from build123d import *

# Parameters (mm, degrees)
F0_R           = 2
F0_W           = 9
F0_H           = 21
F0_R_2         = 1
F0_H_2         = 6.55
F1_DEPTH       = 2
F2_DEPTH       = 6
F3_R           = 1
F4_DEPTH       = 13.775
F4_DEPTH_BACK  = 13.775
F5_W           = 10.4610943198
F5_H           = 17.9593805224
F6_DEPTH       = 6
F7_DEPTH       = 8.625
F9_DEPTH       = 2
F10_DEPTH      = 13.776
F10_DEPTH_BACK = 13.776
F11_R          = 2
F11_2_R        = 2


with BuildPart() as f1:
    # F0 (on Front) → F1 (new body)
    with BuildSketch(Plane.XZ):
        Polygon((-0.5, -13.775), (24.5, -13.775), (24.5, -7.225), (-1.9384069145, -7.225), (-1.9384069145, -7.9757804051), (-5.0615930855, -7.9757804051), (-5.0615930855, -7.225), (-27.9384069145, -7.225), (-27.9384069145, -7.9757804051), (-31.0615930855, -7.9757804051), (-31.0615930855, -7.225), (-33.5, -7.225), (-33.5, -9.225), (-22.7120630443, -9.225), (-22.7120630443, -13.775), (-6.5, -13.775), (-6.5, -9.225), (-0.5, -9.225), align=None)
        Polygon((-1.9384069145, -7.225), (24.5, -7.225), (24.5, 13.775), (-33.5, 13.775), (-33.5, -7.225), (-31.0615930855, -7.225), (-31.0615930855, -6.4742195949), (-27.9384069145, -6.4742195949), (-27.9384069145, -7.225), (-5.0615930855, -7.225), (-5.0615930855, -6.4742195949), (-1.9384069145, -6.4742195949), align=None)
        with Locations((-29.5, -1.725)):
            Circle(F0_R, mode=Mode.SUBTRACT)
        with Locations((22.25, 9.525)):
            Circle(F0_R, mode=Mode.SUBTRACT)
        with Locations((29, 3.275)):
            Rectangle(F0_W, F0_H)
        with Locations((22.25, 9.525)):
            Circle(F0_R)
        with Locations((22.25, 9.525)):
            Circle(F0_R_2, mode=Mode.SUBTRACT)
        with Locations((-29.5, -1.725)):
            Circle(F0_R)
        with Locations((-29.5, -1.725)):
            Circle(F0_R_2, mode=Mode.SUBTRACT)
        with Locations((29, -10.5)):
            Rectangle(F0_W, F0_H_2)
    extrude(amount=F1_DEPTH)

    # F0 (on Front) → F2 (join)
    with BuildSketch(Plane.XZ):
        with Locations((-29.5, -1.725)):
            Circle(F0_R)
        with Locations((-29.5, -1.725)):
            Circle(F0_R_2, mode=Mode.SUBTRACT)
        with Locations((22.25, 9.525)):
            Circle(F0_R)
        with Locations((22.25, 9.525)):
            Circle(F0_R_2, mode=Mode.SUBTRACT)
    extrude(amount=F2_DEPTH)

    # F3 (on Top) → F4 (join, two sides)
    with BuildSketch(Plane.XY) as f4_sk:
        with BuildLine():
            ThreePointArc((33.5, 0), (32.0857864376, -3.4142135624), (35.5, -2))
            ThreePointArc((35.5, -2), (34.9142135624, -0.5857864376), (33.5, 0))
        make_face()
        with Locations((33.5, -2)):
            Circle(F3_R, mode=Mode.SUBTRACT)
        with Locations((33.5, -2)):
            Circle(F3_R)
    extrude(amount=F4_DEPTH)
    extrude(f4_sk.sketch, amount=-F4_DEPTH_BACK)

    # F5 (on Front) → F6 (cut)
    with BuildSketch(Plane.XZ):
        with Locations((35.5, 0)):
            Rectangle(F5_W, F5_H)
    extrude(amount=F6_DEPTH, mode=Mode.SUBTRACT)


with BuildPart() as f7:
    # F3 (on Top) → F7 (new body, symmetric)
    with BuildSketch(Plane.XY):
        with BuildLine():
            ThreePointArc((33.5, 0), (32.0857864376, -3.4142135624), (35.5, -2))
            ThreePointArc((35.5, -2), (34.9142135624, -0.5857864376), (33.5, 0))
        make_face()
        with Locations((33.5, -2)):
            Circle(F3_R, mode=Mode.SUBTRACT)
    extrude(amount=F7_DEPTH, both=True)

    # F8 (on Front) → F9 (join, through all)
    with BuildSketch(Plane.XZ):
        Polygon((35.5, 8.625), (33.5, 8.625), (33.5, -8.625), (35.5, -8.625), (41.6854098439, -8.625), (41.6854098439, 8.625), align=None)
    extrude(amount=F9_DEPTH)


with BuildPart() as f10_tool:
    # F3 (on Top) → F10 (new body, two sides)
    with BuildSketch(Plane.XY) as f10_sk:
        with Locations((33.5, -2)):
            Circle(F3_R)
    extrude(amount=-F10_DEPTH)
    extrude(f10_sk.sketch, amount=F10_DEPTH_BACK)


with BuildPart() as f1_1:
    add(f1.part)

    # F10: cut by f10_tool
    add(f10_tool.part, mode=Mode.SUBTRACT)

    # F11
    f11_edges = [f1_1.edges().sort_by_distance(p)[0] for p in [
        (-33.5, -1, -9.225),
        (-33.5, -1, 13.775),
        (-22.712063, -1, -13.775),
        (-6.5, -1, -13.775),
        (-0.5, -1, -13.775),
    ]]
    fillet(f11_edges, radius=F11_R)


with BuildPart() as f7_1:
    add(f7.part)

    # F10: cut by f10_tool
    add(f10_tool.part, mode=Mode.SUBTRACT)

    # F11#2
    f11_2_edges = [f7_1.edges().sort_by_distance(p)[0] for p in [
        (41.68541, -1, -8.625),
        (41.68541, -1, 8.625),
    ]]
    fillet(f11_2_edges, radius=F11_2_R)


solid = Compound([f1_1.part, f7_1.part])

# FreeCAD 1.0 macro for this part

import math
import FreeCAD as App
import Part
import Sketcher

V = App.Vector
Q = App.Units.Quantity


def edges_at(feature, points):
    """Names of the edges that pass closest to the given points."""
    edges = feature.Shape.Edges
    near = lambda p: min(range(len(edges)), key=lambda i: edges[i].distToShape(Part.Vertex(*p))[0])
    return sorted({f"Edge{near(p) + 1}" for p in points})


def add_polygon(sketch, points):
    """Adds a closed chain of lines whose ends are joined by coincident constraints."""
    first, n = sketch.GeometryCount, len(points)
    for a, b in zip(points, points[1:] + points[:1]):
        sketch.addGeometry(Part.LineSegment(App.Vector(*a, 0), App.Vector(*b, 0)), False)
    for i in range(n):
        sketch.addConstraint(Sketcher.Constraint("Coincident", first + i, 2, first + (i + 1) % n, 1))

doc = App.newDocument("Part")
body = doc.addObject("PartDesign::Body", "Body")

# Sketch on XZ plane
sketch1 = body.newObject("Sketcher::SketchObject", "Sketch")
sketch1.AttachmentSupport = (doc.getObject("XZ_Plane"), [""])
sketch1.MapMode = "FlatFace"
add_polygon(sketch1, [(-0.5, -13.775), (33.5, -13.775), (33.5, 13.775), (-33.5, 13.775), (-33.5, -9.225), (-22.712063, -9.225), (-22.712063, -13.775), (-6.5, -13.775), (-6.5, -9.225), (-0.5, -9.225)])  # lines 0-9
add_polygon(sketch1, [(-27.938407, -7.97578), (-31.061593, -7.97578), (-31.061593, -6.47422), (-27.938407, -6.47422)])  # lines 10-13
sketch1.addGeometry(Part.Circle(V(-29.5, -1.725, 0), V(0, 0, 1), 1), False)  # 14
add_polygon(sketch1, [(-1.938407, -7.97578), (-5.061593, -7.97578), (-5.061593, -6.47422), (-1.938407, -6.47422)])  # lines 15-18
sketch1.addGeometry(Part.Circle(V(22.25, 9.525, 0), V(0, 0, 1), 1), False)  # 19
sketch1.addConstraint(Sketcher.Constraint("Horizontal", 0))
sketch1.addConstraint(Sketcher.Constraint("Vertical", 1))
sketch1.addConstraint(Sketcher.Constraint("Horizontal", 2))
sketch1.addConstraint(Sketcher.Constraint("Vertical", 3))
sketch1.addConstraint(Sketcher.Constraint("Horizontal", 4))
sketch1.addConstraint(Sketcher.Constraint("Vertical", 5))
sketch1.addConstraint(Sketcher.Constraint("Horizontal", 6))
sketch1.addConstraint(Sketcher.Constraint("Vertical", 7))
sketch1.addConstraint(Sketcher.Constraint("Horizontal", 8))
sketch1.addConstraint(Sketcher.Constraint("Vertical", 9))
sketch1.addConstraint(Sketcher.Constraint("Horizontal", 10))
sketch1.addConstraint(Sketcher.Constraint("Vertical", 11))
sketch1.addConstraint(Sketcher.Constraint("Horizontal", 12))
sketch1.addConstraint(Sketcher.Constraint("Vertical", 13))
sketch1.addConstraint(Sketcher.Constraint("Horizontal", 15))
sketch1.addConstraint(Sketcher.Constraint("Vertical", 16))
sketch1.addConstraint(Sketcher.Constraint("Horizontal", 17))
sketch1.addConstraint(Sketcher.Constraint("Vertical", 18))
sketch1.addConstraint(Sketcher.Constraint("Equal", 14, 19))
sketch1.addConstraint(Sketcher.Constraint("Symmetric", 0, 2, 2, 2, -1, 1))
sketch1.addConstraint(Sketcher.Constraint("Horizontal", 0, 2, 5, 2))
sketch1.addConstraint(Sketcher.Constraint("Horizontal", 4, 2, 7, 2))
sketch1.addConstraint(Sketcher.Constraint("Horizontal", 13, 2, 15, 2))
sketch1.addConstraint(Sketcher.Constraint("Horizontal", 12, 2, 16, 2))
sketch1.addConstraint(Sketcher.Constraint("Equal", 12, 15))
sketch1.addConstraint(Sketcher.Constraint("Diameter", 14, Q("2 mm")))
sketch1.addConstraint(Sketcher.Constraint("DistanceX", 0, 1, 0, 2, Q("34 mm")))
sketch1.addConstraint(Sketcher.Constraint("DistanceX", 2, 2, 2, 1, Q("67 mm")))
sketch1.addConstraint(Sketcher.Constraint("DistanceX", 8, 1, 8, 2, Q("6 mm")))
sketch1.addConstraint(Sketcher.Constraint("DistanceY", 3, 2, 3, 1, Q("23 mm")))
sketch1.addConstraint(Sketcher.Constraint("DistanceX", 14, 3, 0, 2, Q("63 mm")))
sketch1.addConstraint(Sketcher.Constraint("DistanceY", 1, 1, 1, 2, Q("27.55 mm")))
sketch1.addConstraint(Sketcher.Constraint("DistanceY", 0, 2, 19, 3, Q("23.3 mm")))
sketch1.addConstraint(Sketcher.Constraint("DistanceY", 14, 3, 1, 2, Q("15.5 mm")))
sketch1.addConstraint(Sketcher.Constraint("DistanceX", -1, 1, 19, 3, Q("22.25 mm")))
sketch1.addConstraint(Sketcher.Constraint("DistanceY", 11, 1, 11, 2, Q("1.501561 mm")))
sketch1.addConstraint(Sketcher.Constraint("DistanceX", 4, 1, 4, 2, Q("10.787937 mm")))
sketch1.addConstraint(Sketcher.Constraint("DistanceX", 10, 2, 10, 1, Q("3.123186 mm")))
sketch1.addConstraint(Sketcher.Constraint("DistanceY", 10, 2, -1, 1, Q("7.97578 mm")))
sketch1.addConstraint(Sketcher.Constraint("DistanceX", 10, 2, 4, 2, Q("8.34953 mm")))
sketch1.addConstraint(Sketcher.Constraint("DistanceX", 4, 2, 15, 2, Q("17.65047 mm")))
pad1 = body.newObject("PartDesign::Pad", "Pad")
pad1.Profile = sketch1
pad1.Length = 2

# Sketch on XZ plane
sketch2 = body.newObject("Sketcher::SketchObject", "Sketch001")
sketch2.AttachmentSupport = (doc.getObject("XZ_Plane"), [""])
sketch2.MapMode = "FlatFace"
sketch2.addGeometry(Part.Circle(V(-29.5, -1.725, 0), V(0, 0, 1), 2), False)
sketch2.addGeometry(Part.Circle(V(-29.5, -1.725, 0), V(0, 0, 1), 1), False)
sketch2.addGeometry(Part.Circle(V(22.25, 9.525, 0), V(0, 0, 1), 2), False)
sketch2.addGeometry(Part.Circle(V(22.25, 9.525, 0), V(0, 0, 1), 1), False)
sketch2.addConstraint(Sketcher.Constraint("Coincident", 1, 3, 0, 3))
sketch2.addConstraint(Sketcher.Constraint("Coincident", 3, 3, 2, 3))
sketch2.addConstraint(Sketcher.Constraint("Equal", 0, 2))
sketch2.addConstraint(Sketcher.Constraint("Equal", 1, 3))
sketch2.addConstraint(Sketcher.Constraint("Diameter", 0, Q("4 mm")))
sketch2.addConstraint(Sketcher.Constraint("Diameter", 1, Q("2 mm")))
sketch2.addConstraint(Sketcher.Constraint("DistanceX", 0, 3, -1, 1, Q("29.5 mm")))
sketch2.addConstraint(Sketcher.Constraint("DistanceX", -1, 1, 2, 3, Q("22.25 mm")))
sketch2.addConstraint(Sketcher.Constraint("DistanceY", 0, 3, 2, 3, Q("11.25 mm")))
sketch2.addConstraint(Sketcher.Constraint("DistanceY", 0, 3, -1, 1, Q("1.725 mm")))
pad2 = body.newObject("PartDesign::Pad", "Pad001")
pad2.Profile = sketch2
pad2.Length = 6

# Sketch on XY plane
sketch3 = body.newObject("Sketcher::SketchObject", "Sketch002")
sketch3.AttachmentSupport = (doc.getObject("XY_Plane"), [""])
sketch3.MapMode = "FlatFace"
sketch3.addGeometry(Part.ArcOfCircle(Part.Circle(V(33.5, -2, 0), V(0, 0, 1), 2), math.radians(90), math.radians(360)), False)
sketch3.addGeometry(Part.ArcOfCircle(Part.Circle(V(33.5, -2, 0), V(0, 0, 1), 2), math.radians(0), math.radians(90)), False)
sketch3.addConstraint(Sketcher.Constraint("Tangent", 0, 1, 1, 2))
sketch3.addConstraint(Sketcher.Constraint("Coincident", 1, 1, 0, 2))
sketch3.addConstraint(Sketcher.Constraint("PointOnObject", 0, 1, -1))
sketch3.addConstraint(Sketcher.Constraint("Horizontal", 0, 3, 1, 1))
sketch3.addConstraint(Sketcher.Constraint("Vertical", 1, 3, 0, 1))
sketch3.addConstraint(Sketcher.Constraint("Radius", 0, Q("2 mm")))
sketch3.addConstraint(Sketcher.Constraint("DistanceX", -1, 1, 0, 3, Q("33.5 mm")))
pad3 = body.newObject("PartDesign::Pad", "Pad002")
pad3.Profile = sketch3
pad3.Type = "TwoLengths"
pad3.Length = 13.775
pad3.Length2 = 13.775

# Sketch on XZ plane
sketch4 = body.newObject("Sketcher::SketchObject", "Sketch003")
sketch4.AttachmentSupport = (doc.getObject("XZ_Plane"), [""])
sketch4.MapMode = "FlatFace"
add_polygon(sketch4, [(30.269453, 8.97969), (30.269453, -8.97969), (40.730547, -8.97969), (40.730547, 8.97969)])  # lines 0-3
sketch4.addConstraint(Sketcher.Constraint("Vertical", 0))
sketch4.addConstraint(Sketcher.Constraint("Horizontal", 1))
sketch4.addConstraint(Sketcher.Constraint("Vertical", 2))
sketch4.addConstraint(Sketcher.Constraint("Horizontal", 3))
sketch4.addConstraint(Sketcher.Constraint("DistanceY", 0, 2, 0, 1, Q("17.959381 mm")))
sketch4.addConstraint(Sketcher.Constraint("DistanceX", 1, 1, 1, 2, Q("10.461094 mm")))
sketch4.addConstraint(Sketcher.Constraint("DistanceY", 0, 2, -1, 1, Q("8.97969 mm")))
sketch4.addConstraint(Sketcher.Constraint("DistanceX", -1, 1, 0, 2, Q("30.269453 mm")))
pocket1 = body.newObject("PartDesign::Pocket", "Pocket")
pocket1.Profile = sketch4
pocket1.Length = 6
pocket1.Reversed = True
body2 = doc.addObject("PartDesign::Body", "Body001")

# Sketch on XY plane
sketch5 = body2.newObject("Sketcher::SketchObject", "Sketch004")
sketch5.AttachmentSupport = (doc.getObject("XY_Plane001"), [""])
sketch5.MapMode = "FlatFace"
sketch5.addGeometry(Part.ArcOfCircle(Part.Circle(V(33.5, -2, 0), V(0, 0, 1), 2), math.radians(90), math.radians(360)), False)
sketch5.addGeometry(Part.ArcOfCircle(Part.Circle(V(33.5, -2, 0), V(0, 0, 1), 2), math.radians(0), math.radians(90)), False)
sketch5.addGeometry(Part.Circle(V(33.5, -2, 0), V(0, 0, 1), 1), False)
sketch5.addConstraint(Sketcher.Constraint("Tangent", 0, 1, 1, 2))
sketch5.addConstraint(Sketcher.Constraint("Coincident", 1, 1, 0, 2))
sketch5.addConstraint(Sketcher.Constraint("Coincident", 2, 3, 0, 3))
sketch5.addConstraint(Sketcher.Constraint("PointOnObject", 0, 1, -1))
sketch5.addConstraint(Sketcher.Constraint("Horizontal", 2, 3, 1, 1))
sketch5.addConstraint(Sketcher.Constraint("Vertical", 2, 3, 0, 1))
sketch5.addConstraint(Sketcher.Constraint("Diameter", 2, Q("2 mm")))
sketch5.addConstraint(Sketcher.Constraint("Radius", 0, Q("2 mm")))
sketch5.addConstraint(Sketcher.Constraint("DistanceX", -1, 1, 0, 3, Q("33.5 mm")))
pad4 = body2.newObject("PartDesign::Pad", "Pad003")
pad4.Profile = sketch5
pad4.Length = 17.25
pad4.Midplane = True

# Sketch on XZ plane
sketch6 = body2.newObject("Sketcher::SketchObject", "Sketch005")
sketch6.AttachmentSupport = (doc.getObject("XZ_Plane001"), [""])
sketch6.MapMode = "FlatFace"
add_polygon(sketch6, [(33.5, 8.625), (33.5, -8.625), (41.68541, -8.625), (41.68541, 8.625)])  # lines 0-3
sketch6.addConstraint(Sketcher.Constraint("Vertical", 0))
sketch6.addConstraint(Sketcher.Constraint("Horizontal", 1))
sketch6.addConstraint(Sketcher.Constraint("Vertical", 2))
sketch6.addConstraint(Sketcher.Constraint("Horizontal", 3))
sketch6.addConstraint(Sketcher.Constraint("DistanceY", 0, 2, 0, 1, Q("17.25 mm")))
sketch6.addConstraint(Sketcher.Constraint("DistanceX", -1, 1, 0, 2, Q("33.5 mm")))
sketch6.addConstraint(Sketcher.Constraint("DistanceY", 0, 2, -1, 1, Q("8.625 mm")))
sketch6.addConstraint(Sketcher.Constraint("DistanceX", 1, 1, 1, 2, Q("8.18541 mm")))
pad5 = body2.newObject("PartDesign::Pad", "Pad004")
pad5.Profile = sketch6
pad5.Length = 2
body3 = doc.addObject("PartDesign::Body", "Body002")

# Sketch on XY plane
sketch7 = body3.newObject("Sketcher::SketchObject", "Sketch006")
sketch7.AttachmentSupport = (doc.getObject("XY_Plane002"), [""])
sketch7.MapMode = "FlatFace"
sketch7.addGeometry(Part.Circle(V(33.5, -2, 0), V(0, 0, 1), 1), False)
sketch7.addConstraint(Sketcher.Constraint("Diameter", 0, Q("2 mm")))
sketch7.addConstraint(Sketcher.Constraint("DistanceY", 0, 3, -1, 1, Q("2 mm")))
sketch7.addConstraint(Sketcher.Constraint("DistanceX", -1, 1, 0, 3, Q("33.5 mm")))
pad6 = body3.newObject("PartDesign::Pad", "Pad005")
pad6.Profile = sketch7
pad6.Type = "TwoLengths"
pad6.Length = 13.776
pad6.Length2 = 13.776
pad6.Reversed = True
doc.recompute()

body4 = doc.addObject("PartDesign::Body", "Body003")
body4.BaseFeature = body3
boolean = body.newObject("PartDesign::Boolean", "Boolean")
boolean.Type = "Cut"
boolean.addObjects([body4])
doc.recompute()

fillet = body.newObject("PartDesign::Fillet", "Fillet")
fillet.Base = (boolean, edges_at(boolean, [
    (-33.5, -1, -9.225),
    (-33.5, -1, 13.775),
    (-22.712, -1, -13.775),
    (-6.5, -1, -13.775),
    (-0.5, -1, -13.775),
]))
fillet.Radius = 2
doc.recompute()

boolean2 = body2.newObject("PartDesign::Boolean", "Boolean001")
boolean2.Type = "Cut"
boolean2.addObjects([body3])
doc.recompute()

fillet2 = body2.newObject("PartDesign::Fillet", "Fillet001")
fillet2.Base = (boolean2, edges_at(boolean2, [(41.685, -1, -8.625), (41.685, -1, 8.625)]))
fillet2.Radius = 2

doc.recompute()
